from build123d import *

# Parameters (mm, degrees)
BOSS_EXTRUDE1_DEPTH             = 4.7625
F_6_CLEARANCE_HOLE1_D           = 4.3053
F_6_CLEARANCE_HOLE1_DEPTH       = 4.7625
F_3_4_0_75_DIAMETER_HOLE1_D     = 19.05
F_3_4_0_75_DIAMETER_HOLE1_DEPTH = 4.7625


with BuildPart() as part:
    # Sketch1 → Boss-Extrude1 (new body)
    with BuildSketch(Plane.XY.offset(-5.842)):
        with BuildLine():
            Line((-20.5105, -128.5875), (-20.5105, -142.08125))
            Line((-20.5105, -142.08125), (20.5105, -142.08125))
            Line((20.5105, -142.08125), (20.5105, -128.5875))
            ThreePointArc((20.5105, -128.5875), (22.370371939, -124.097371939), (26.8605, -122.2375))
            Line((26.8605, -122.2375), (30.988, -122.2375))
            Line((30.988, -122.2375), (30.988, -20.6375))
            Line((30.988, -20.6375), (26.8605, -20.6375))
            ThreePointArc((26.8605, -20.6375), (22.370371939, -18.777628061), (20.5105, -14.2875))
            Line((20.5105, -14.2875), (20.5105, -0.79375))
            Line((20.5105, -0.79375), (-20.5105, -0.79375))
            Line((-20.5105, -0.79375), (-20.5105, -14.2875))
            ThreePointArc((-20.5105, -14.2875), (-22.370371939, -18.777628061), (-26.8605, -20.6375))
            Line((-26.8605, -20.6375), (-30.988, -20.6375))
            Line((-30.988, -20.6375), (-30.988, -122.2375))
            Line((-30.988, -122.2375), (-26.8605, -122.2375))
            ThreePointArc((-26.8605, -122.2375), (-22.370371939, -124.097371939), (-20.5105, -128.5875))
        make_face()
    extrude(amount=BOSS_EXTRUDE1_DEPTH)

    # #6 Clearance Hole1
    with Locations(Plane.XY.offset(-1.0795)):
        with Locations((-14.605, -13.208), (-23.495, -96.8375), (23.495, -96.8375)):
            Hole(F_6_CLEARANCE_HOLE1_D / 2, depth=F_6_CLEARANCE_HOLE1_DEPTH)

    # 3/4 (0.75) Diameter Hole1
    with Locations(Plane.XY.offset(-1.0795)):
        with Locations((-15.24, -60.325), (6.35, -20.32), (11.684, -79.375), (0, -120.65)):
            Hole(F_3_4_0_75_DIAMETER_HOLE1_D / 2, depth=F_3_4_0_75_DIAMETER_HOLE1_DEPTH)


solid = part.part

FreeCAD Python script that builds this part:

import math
import FreeCAD as App
import Part
import Sketcher

V = App.Vector
Q = App.Units.Quantity

doc = App.newDocument("Part")
body = doc.addObject("PartDesign::Body", "Body")

# Sketch on XY plane
sketch1 = body.newObject("Sketcher::SketchObject", "Sketch")
sketch1.AttachmentSupport = (doc.getObject("XY_Plane"), [""])
sketch1.MapMode = "FlatFace"
sketch1.AttachmentOffset = App.Placement(V(0, 0, -0.23 * 25.4), App.Rotation())
sketch1.addGeometry(Part.LineSegment(V(-20.5105, -128.5875, 0), V(-20.5105, -142.08125, 0)), False)
sketch1.addGeometry(Part.LineSegment(V(-20.5105, -142.08125, 0), V(20.5105, -142.08125, 0)), False)
sketch1.addGeometry(Part.LineSegment(V(20.5105, -142.08125, 0), V(20.5105, -128.5875, 0)), False)
sketch1.addGeometry(Part.ArcOfCircle(Part.Circle(V(26.8605, -128.5875, 0), V(0, 0, 1), 6.35), math.radians(90), math.radians(180)), False)
sketch1.addGeometry(Part.LineSegment(V(26.8605, -122.2375, 0), V(30.988, -122.2375, 0)), False)
sketch1.addGeometry(Part.LineSegment(V(30.988, -122.2375, 0), V(30.988, -20.6375, 0)), False)
sketch1.addGeometry(Part.LineSegment(V(30.988, -20.6375, 0), V(26.8605, -20.6375, 0)), False)
sketch1.addGeometry(Part.ArcOfCircle(Part.Circle(V(26.8605, -14.2875, 0), V(0, 0, 1), 6.35), math.radians(180), math.radians(270)), False)
sketch1.addGeometry(Part.LineSegment(V(20.5105, -14.2875, 0), V(20.5105, -0.79375, 0)), False)
sketch1.addGeometry(Part.LineSegment(V(20.5105, -0.79375, 0), V(-20.5105, -0.79375, 0)), False)
sketch1.addGeometry(Part.LineSegment(V(-20.5105, -0.79375, 0), V(-20.5105, -14.2875, 0)), False)
sketch1.addGeometry(Part.ArcOfCircle(Part.Circle(V(-26.8605, -14.2875, 0), V(0, 0, 1), 6.35), math.radians(-90), math.radians(0)), False)
sketch1.addGeometry(Part.LineSegment(V(-26.8605, -20.6375, 0), V(-30.988, -20.6375, 0)), False)
sketch1.addGeometry(Part.LineSegment(V(-30.988, -20.6375, 0), V(-30.988, -122.2375, 0)), False)
sketch1.addGeometry(Part.LineSegment(V(-30.988, -122.2375, 0), V(-26.8605, -122.2375, 0)), False)
sketch1.addGeometry(Part.ArcOfCircle(Part.Circle(V(-26.8605, -128.5875, 0), V(0, 0, 1), 6.35), math.radians(0), math.radians(90)), False)
sketch1.addConstraint(Sketcher.Constraint("Coincident", 0, 2, 1, 1))
sketch1.addConstraint(Sketcher.Constraint("Coincident", 1, 2, 2, 1))
sketch1.addConstraint(Sketcher.Constraint("Tangent", 2, 2, 3, 2))
sketch1.addConstraint(Sketcher.Constraint("Tangent", 3, 1, 4, 1))
sketch1.addConstraint(Sketcher.Constraint("Coincident", 4, 2, 5, 1))
sketch1.addConstraint(Sketcher.Constraint("Coincident", 5, 2, 6, 1))
sketch1.addConstraint(Sketcher.Constraint("Tangent", 6, 2, 7, 2))
sketch1.addConstraint(Sketcher.Constraint("Tangent", 7, 1, 8, 1))
sketch1.addConstraint(Sketcher.Constraint("Coincident", 8, 2, 9, 1))
sketch1.addConstraint(Sketcher.Constraint("Coincident", 9, 2, 10, 1))
sketch1.addConstraint(Sketcher.Constraint("Tangent", 10, 2, 11, 2))
sketch1.addConstraint(Sketcher.Constraint("Tangent", 11, 1, 12, 1))
sketch1.addConstraint(Sketcher.Constraint("Coincident", 12, 2, 13, 1))
sketch1.addConstraint(Sketcher.Constraint("Coincident", 13, 2, 14, 1))
sketch1.addConstraint(Sketcher.Constraint("Tangent", 14, 2, 15, 2))
sketch1.addConstraint(Sketcher.Constraint("Tangent", 15, 1, 0, 1))
sketch1.addConstraint(Sketcher.Constraint("Vertical", 0))
sketch1.addConstraint(Sketcher.Constraint("Horizontal", 1))
sketch1.addConstraint(Sketcher.Constraint("Vertical", 2))
sketch1.addConstraint(Sketcher.Constraint("Horizontal", 4))
sketch1.addConstraint(Sketcher.Constraint("Vertical", 5))
sketch1.addConstraint(Sketcher.Constraint("Horizontal", 6))
sketch1.addConstraint(Sketcher.Constraint("Vertical", 8))
sketch1.addConstraint(Sketcher.Constraint("Horizontal", 9))
sketch1.addConstraint(Sketcher.Constraint("Vertical", 10))
sketch1.addConstraint(Sketcher.Constraint("Horizontal", 12))
sketch1.addConstraint(Sketcher.Constraint("Vertical", 13))
sketch1.addConstraint(Sketcher.Constraint("Horizontal", 14))
sketch1.addConstraint(Sketcher.Constraint("Equal", 3, 7))
sketch1.addConstraint(Sketcher.Constraint("Equal", 7, 11))
sketch1.addConstraint(Sketcher.Constraint("Equal", 11, 15))
sketch1.addConstraint(Sketcher.Constraint("Symmetric", 7, 3, 11, 3, -2))
sketch1.addConstraint(Sketcher.Constraint("Symmetric", 3, 3, 15, 3, -2))
sketch1.addConstraint(Sketcher.Constraint("Vertical", 3, 3, 7, 3))
sketch1.addConstraint(Sketcher.Constraint("Equal", 6, 12))
sketch1.addConstraint(Sketcher.Constraint("Equal", 2, 8))
sketch1.addConstraint(Sketcher.Constraint("DistanceY", 5, 1, 5, 2, Q("4 in")))
sketch1.addConstraint(Sketcher.Constraint("Radius", 3, Q("0.25 in")))
sketch1.addConstraint(Sketcher.Constraint("DistanceX", 1, 1, 1, 2, Q("1.615 in")))
sketch1.addConstraint(Sketcher.Constraint("DistanceY", 0, 2, 0, 1, Q("0.53125 in")))
sketch1.addConstraint(Sketcher.Constraint("DistanceX", -1, 1, 4, 2, Q("1.22 in")))
sketch1.addConstraint(Sketcher.Constraint("DistanceY", 3, 3, -1, 1, Q("5.0625 in")))
pad1 = body.newObject("PartDesign::Pad", "Pad")
pad1.Profile = sketch1
pad1.Length = Q("0.1875 in")

# Sketch on XY plane
sketch2 = body.newObject("Sketcher::SketchObject", "Sketch001")
sketch2.AttachmentSupport = (doc.getObject("XY_Plane"), [""])
sketch2.MapMode = "FlatFace"
sketch2.AttachmentOffset = App.Placement(V(0, 0, -0.0425 * 25.4), App.Rotation())
sketch2.addGeometry(Part.Circle(V(-14.605, -13.208, 0), V(0, 0, 1), 2.15265), False)
sketch2.addGeometry(Part.Circle(V(-23.495, -96.8375, 0), V(0, 0, 1), 2.15265), False)
sketch2.addGeometry(Part.Circle(V(23.495, -96.8375, 0), V(0, 0, 1), 2.15265), False)
sketch2.addConstraint(Sketcher.Constraint("Equal", 0, 1))
sketch2.addConstraint(Sketcher.Constraint("Equal", 1, 2))
sketch2.addConstraint(Sketcher.Constraint("Symmetric", 1, 3, 2, 3, -2))
sketch2.addConstraint(Sketcher.Constraint("Diameter", 0, Q("0.1695 in")))
sketch2.addConstraint(Sketcher.Constraint("DistanceX", 0, 3, 2, 3, Q("1.5 in")))
sketch2.addConstraint(Sketcher.Constraint("DistanceY", 0, 3, -1, 1, Q("0.52 in")))
sketch2.addConstraint(Sketcher.Constraint("DistanceX", 1, 3, 0, 3, Q("0.35 in")))
sketch2.addConstraint(Sketcher.Constraint("DistanceY", 1, 3, -1, 1, Q("3.8125 in")))
doc.recompute()
hole = body.newObject("PartDesign::Hole", "Hole")
hole.Profile = sketch2
hole.ThreadType = "None"
hole.Diameter = Q("0.1695 in")
hole.DepthType = "Dimension"
hole.Depth = Q("0.1875 in")
hole.DrillPoint = "Flat"

# Sketch on XY plane
sketch3 = body.newObject("Sketcher::SketchObject", "Sketch002")
sketch3.AttachmentSupport = (doc.getObject("XY_Plane"), [""])
sketch3.MapMode = "FlatFace"
sketch3.AttachmentOffset = App.Placement(V(0, 0, -0.0425 * 25.4), App.Rotation())
sketch3.addGeometry(Part.Circle(V(-15.24, -60.325, 0), V(0, 0, 1), 9.525), False)
sketch3.addGeometry(Part.Circle(V(6.35, -20.32, 0), V(0, 0, 1), 9.525), False)
sketch3.addGeometry(Part.Circle(V(11.684, -79.375, 0), V(0, 0, 1), 9.525), False)
sketch3.addGeometry(Part.Circle(V(0, -120.65, 0), V(0, 0, 1), 9.525), False)
sketch3.addConstraint(Sketcher.Constraint("Equal", 0, 1))
sketch3.addConstraint(Sketcher.Constraint("Equal", 1, 2))
sketch3.addConstraint(Sketcher.Constraint("Equal", 2, 3))
sketch3.addConstraint(Sketcher.Constraint("PointOnObject", 3, 3, -2))
sketch3.addConstraint(Sketcher.Constraint("Diameter", 0, Q("0.75 in")))
sketch3.addConstraint(Sketcher.Constraint("DistanceX", 0, 3, -1, 1, Q("0.6 in")))
sketch3.addConstraint(Sketcher.Constraint("DistanceY", 1, 3, -1, 1, Q("0.8 in")))
sketch3.addConstraint(Sketcher.Constraint("DistanceX", -1, 1, 1, 3, Q("0.25 in")))
sketch3.addConstraint(Sketcher.Constraint("DistanceX", -1, 1, 2, 3, Q("0.46 in")))
sketch3.addConstraint(Sketcher.Constraint("DistanceY", 3, 3, -1, 1, Q("4.75 in")))
sketch3.addConstraint(Sketcher.Constraint("DistanceY", 2, 3, 0, 3, Q("0.75 in")))
sketch3.addConstraint(Sketcher.Constraint("DistanceY", 0, 3, -1, 1, Q("2.375 in")))
doc.recompute()
hole2 = body.newObject("PartDesign::Hole", "Hole001")
hole2.Profile = sketch3
hole2.ThreadType = "None"
hole2.Diameter = Q("0.75 in")
hole2.DepthType = "Dimension"
hole2.Depth = Q("0.1875 in")
hole2.DrillPoint = "Flat"

doc.recompute()
